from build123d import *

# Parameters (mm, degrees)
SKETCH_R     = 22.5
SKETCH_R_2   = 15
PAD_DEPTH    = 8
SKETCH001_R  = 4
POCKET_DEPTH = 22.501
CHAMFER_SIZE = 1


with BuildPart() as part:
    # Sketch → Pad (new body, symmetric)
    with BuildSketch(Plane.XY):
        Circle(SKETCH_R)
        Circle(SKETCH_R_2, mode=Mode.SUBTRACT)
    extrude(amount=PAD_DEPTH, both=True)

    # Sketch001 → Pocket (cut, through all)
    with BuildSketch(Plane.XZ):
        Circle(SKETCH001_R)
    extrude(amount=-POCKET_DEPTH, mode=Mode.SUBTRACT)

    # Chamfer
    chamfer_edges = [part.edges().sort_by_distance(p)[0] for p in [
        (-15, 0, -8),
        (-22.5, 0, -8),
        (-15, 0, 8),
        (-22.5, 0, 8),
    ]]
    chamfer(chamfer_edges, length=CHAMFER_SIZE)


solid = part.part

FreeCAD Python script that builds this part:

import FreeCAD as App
import Part
import Sketcher
from FreeCAD import Vector


def edges_at(feature, points):
    """Names of the edges that pass closest to the given points."""
    edges = feature.Shape.Edges
    near = lambda p: min(range(len(edges)), key=lambda i: edges[i].distToShape(Part.Vertex(*p))[0])
    return sorted({f"Edge{near(p) + 1}" for p in points})

doc = App.newDocument("Part")
params = doc.addObject("Spreadsheet::Sheet", "Params")
for row, (alias, value) in enumerate([
    ("sketch1_diameter", "45 mm"),
    ("sketch1_diameter2", "30 mm"),
    ("pad1_length", "16 mm"),
    ("sketch2_diameter", "8 mm"),
    ("chamfer_size", "1 mm"),
], start=1):
    params.set(f"A{row}", alias)
    params.set(f"B{row}", "=" + value)
    params.setAlias(f"B{row}", alias)

body = doc.addObject("PartDesign::Body", "Body")

# Sketch on XY plane
sketch1 = body.newObject("Sketcher::SketchObject", "Sketch")
sketch1.AttachmentSupport = (doc.getObject("XY_Plane"), [""])
sketch1.MapMode = "FlatFace"
sketch1.addGeometry(Part.Circle(Vector(0, 0, 0), Vector(0, 0, 1), 22), False)
sketch1.addGeometry(Part.Circle(Vector(0, 0, 0), Vector(0, 0, 1), 15), False)
sketch1.addConstraint(Sketcher.Constraint("Coincident", 0, 3, -1, 1))
sketch1.addConstraint(Sketcher.Constraint("Coincident", 1, 3, -1, 1))
sketch1.addConstraint(Sketcher.Constraint("Diameter", 0, 45.0))
sketch1.addConstraint(Sketcher.Constraint("Diameter", 1, 30.0))
sketch1.setExpression("Constraints[2]", "Params.sketch1_diameter")
sketch1.setExpression("Constraints[3]", "Params.sketch1_diameter2")
pad1 = body.newObject("PartDesign::Pad", "Pad")
pad1.Profile = sketch1
pad1.setExpression("Length", "Params.pad1_length")
pad1.Midplane = True

# Sketch on XZ plane
sketch2 = body.newObject("Sketcher::SketchObject", "Sketch001")
sketch2.AttachmentSupport = (doc.getObject("XZ_Plane"), [""])
sketch2.MapMode = "FlatFace"
sketch2.addGeometry(Part.Circle(Vector(0, 0, 0), Vector(0, 0, 1), 4), False)
sketch2.addConstraint(Sketcher.Constraint("Coincident", 0, 3, -1, 1))
sketch2.addConstraint(Sketcher.Constraint("Diameter", 0, 8.0))
sketch2.setExpression("Constraints[1]", "Params.sketch2_diameter")
pocket1 = body.newObject("PartDesign::Pocket", "Pocket")
pocket1.Profile = sketch2
pocket1.Type = "ThroughAll"
doc.recompute()

chamfer = body.newObject("PartDesign::Chamfer", "Chamfer")
chamfer.Base = (pocket1, edges_at(pocket1, [
    (-15, 0, -8),
    (-22.5, 0, -8),
    (-15, 0, 8),
    (-22.5, 0, 8),
]))
chamfer.setExpression("Size", "Params.chamfer_size")

doc.recompute()
